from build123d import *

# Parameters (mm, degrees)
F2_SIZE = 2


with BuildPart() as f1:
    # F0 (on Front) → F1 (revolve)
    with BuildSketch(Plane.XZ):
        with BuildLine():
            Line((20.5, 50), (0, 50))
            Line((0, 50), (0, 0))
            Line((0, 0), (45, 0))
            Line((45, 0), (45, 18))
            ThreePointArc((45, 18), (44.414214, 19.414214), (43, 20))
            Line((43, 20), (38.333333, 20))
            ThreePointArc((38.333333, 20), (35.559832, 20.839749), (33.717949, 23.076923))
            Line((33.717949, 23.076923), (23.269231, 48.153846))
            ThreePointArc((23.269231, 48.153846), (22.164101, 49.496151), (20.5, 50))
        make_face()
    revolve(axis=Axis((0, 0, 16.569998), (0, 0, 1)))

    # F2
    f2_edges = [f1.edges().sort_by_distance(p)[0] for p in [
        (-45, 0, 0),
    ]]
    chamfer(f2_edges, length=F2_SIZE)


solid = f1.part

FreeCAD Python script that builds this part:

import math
import FreeCAD as App
import Part
import Sketcher


def edges_at(feature, points):
    """Names of the edges that pass closest to the given points."""
    edges = feature.Shape.Edges
    near = lambda p: min(range(len(edges)), key=lambda i: edges[i].distToShape(Part.Vertex(*p))[0])
    return sorted({f"Edge{near(p) + 1}" for p in points})

doc = App.newDocument("Part")
params = doc.addObject("Spreadsheet::Sheet", "Params")
for row, (alias, value) in enumerate([
    ("sketch1_radius", "1.999999 mm"),
    ("sketch1_radius2", "5 mm"),
    ("sketch1_radius3", "2.999999 mm"),
    ("sketch1_width", "45 mm"),
    ("sketch1_height", "50 mm"),
    ("revolution_angle", "360 deg"),
    ("chamfer_size", "2 mm"),
], start=1):
    params.set(f"A{row}", alias)
    params.set(f"B{row}", "=" + value)
    params.setAlias(f"B{row}", alias)

body = doc.addObject("PartDesign::Body", "Body")

# Sketch on XZ plane
sketch1 = body.newObject("Sketcher::SketchObject", "Sketch")
sketch1.AttachmentSupport = (doc.getObject("XZ_Plane"), [""])
sketch1.MapMode = "FlatFace"
sketch1.addGeometry(Part.LineSegment(App.Vector(20.5, 50, 0), App.Vector(0, 50, 0)), False)
sketch1.addGeometry(Part.LineSegment(App.Vector(0, 50, 0), App.Vector(0, 0, 0)), False)
sketch1.addGeometry(Part.LineSegment(App.Vector(0, 0, 0), App.Vector(45, 0, 0)), False)
sketch1.addGeometry(Part.LineSegment(App.Vector(45, 0, 0), App.Vector(45, 18, 0)), False)
sketch1.addGeometry(Part.ArcOfCircle(Part.Circle(App.Vector(43.000001, 18.000001, 0), App.Vector(0, 0, 1), 1.999999), math.radians(-0.000043), math.radians(90.000043)), False)
sketch1.addGeometry(Part.LineSegment(App.Vector(43, 20, 0), App.Vector(38.333333, 20, 0)), False)
sketch1.addGeometry(Part.ArcOfCircle(Part.Circle(App.Vector(38.333334, 25, 0), App.Vector(0, 0, 1), 5), math.radians(-157.380132), math.radians(-90.000009)), False)
sketch1.addGeometry(Part.LineSegment(App.Vector(33.717949, 23.076923, 0), App.Vector(23.269231, 48.153846, 0)), False)
sketch1.addGeometry(Part.ArcOfCircle(Part.Circle(App.Vector(20.500001, 47.000001, 0), App.Vector(0, 0, 1), 2.999999), math.radians(22.619847), math.radians(90.000018)), False)
sketch1.addConstraint(Sketcher.Constraint("Coincident", 0, 2, 1, 1))
sketch1.addConstraint(Sketcher.Constraint("Coincident", 1, 2, 2, 1))
sketch1.addConstraint(Sketcher.Constraint("Coincident", 2, 2, 3, 1))
sketch1.addConstraint(Sketcher.Constraint("Tangent", 3, 2, 4, 1))
sketch1.addConstraint(Sketcher.Constraint("Tangent", 4, 2, 5, 1))
sketch1.addConstraint(Sketcher.Constraint("Tangent", 5, 2, 6, 2))
sketch1.addConstraint(Sketcher.Constraint("Tangent", 6, 1, 7, 1))
sketch1.addConstraint(Sketcher.Constraint("Tangent", 7, 2, 8, 1))
sketch1.addConstraint(Sketcher.Constraint("Tangent", 8, 2, 0, 1))
sketch1.addConstraint(Sketcher.Constraint("Horizontal", 0))
sketch1.addConstraint(Sketcher.Constraint("Vertical", 1))
sketch1.addConstraint(Sketcher.Constraint("Horizontal", 2))
sketch1.addConstraint(Sketcher.Constraint("Vertical", 3))
sketch1.addConstraint(Sketcher.Constraint("Horizontal", 5))
sketch1.addConstraint(Sketcher.Constraint("Coincident", 1, 2, -1, 1))
sketch1.addConstraint(Sketcher.Constraint("Radius", 4, 1.999999))
sketch1.addConstraint(Sketcher.Constraint("Radius", 6, 5.0))
sketch1.addConstraint(Sketcher.Constraint("Radius", 8, 2.999999))
sketch1.addConstraint(Sketcher.Constraint("DistanceX", 2, 1, 2, 2, 45.0))
sketch1.addConstraint(Sketcher.Constraint("DistanceY", 1, 2, 1, 1, 50.0))
sketch1.addConstraint(Sketcher.Constraint("DistanceY", 3, 1, 3, 2, 18.0))
sketch1.addConstraint(Sketcher.Constraint("DistanceX", 0, 2, 0, 1, 20.5))
sketch1.addConstraint(Sketcher.Constraint("DistanceX", 5, 2, 5, 1, 4.666667))
sketch1.setExpression("Constraints[15]", "Params.sketch1_radius")
sketch1.setExpression("Constraints[16]", "Params.sketch1_radius2")
sketch1.setExpression("Constraints[17]", "Params.sketch1_radius3")
sketch1.setExpression("Constraints[18]", "Params.sketch1_width")
sketch1.setExpression("Constraints[19]", "Params.sketch1_height")
revolution = body.newObject("PartDesign::Revolution", "Revolution")
revolution.Profile = sketch1
revolution.ReferenceAxis = (sketch1, ["V_Axis"])
revolution.setExpression("Angle", "Params.revolution_angle")
doc.recompute()

chamfer = body.newObject("PartDesign::Chamfer", "Chamfer")
chamfer.Base = (revolution, edges_at(revolution, [(-45, 0, 0)]))
chamfer.setExpression("Size", "Params.chamfer_size")

doc.recompute()
